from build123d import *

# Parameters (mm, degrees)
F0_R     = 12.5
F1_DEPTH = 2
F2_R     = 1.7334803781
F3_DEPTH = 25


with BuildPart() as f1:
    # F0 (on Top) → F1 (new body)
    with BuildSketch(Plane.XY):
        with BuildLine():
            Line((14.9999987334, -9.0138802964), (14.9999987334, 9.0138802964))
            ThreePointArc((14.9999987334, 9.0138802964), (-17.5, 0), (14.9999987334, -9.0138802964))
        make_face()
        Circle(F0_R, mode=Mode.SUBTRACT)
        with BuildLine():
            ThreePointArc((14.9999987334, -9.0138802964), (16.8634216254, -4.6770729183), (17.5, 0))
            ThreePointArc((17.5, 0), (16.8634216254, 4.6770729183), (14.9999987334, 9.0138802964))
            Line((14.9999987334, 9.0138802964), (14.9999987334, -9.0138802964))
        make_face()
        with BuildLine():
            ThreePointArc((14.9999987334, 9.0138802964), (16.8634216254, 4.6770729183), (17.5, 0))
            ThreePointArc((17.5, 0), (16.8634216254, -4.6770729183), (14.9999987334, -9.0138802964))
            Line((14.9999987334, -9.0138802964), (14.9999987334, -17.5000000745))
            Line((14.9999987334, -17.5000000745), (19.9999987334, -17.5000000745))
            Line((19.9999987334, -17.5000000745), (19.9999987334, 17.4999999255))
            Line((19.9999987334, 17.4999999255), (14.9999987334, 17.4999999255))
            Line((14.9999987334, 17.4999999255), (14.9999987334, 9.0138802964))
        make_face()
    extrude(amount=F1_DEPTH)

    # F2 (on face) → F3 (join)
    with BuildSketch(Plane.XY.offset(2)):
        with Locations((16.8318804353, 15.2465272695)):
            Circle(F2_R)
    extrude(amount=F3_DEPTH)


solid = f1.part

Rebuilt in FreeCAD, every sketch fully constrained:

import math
import FreeCAD as App
import Part
import Sketcher
from FreeCAD import Vector

doc = App.newDocument("Part")
body = doc.addObject("PartDesign::Body", "Body")

# Sketch on XY plane
sketch1 = doc.addObject("Sketcher::SketchObject", "Sketch")
body.addObject(sketch1)
sketch1.AttachmentSupport = (doc.XY_Plane, [""])
sketch1.MapMode = "FlatFace"
sketch1.addGeometry([
    Part.ArcOfCircle(Part.Circle(Vector(0, 0, 0), Vector(0, 0, 1), 18), math.radians(31), math.radians(329)),  # 0
    Part.LineSegment(Vector(15, -9, 0), Vector(15, -18, 0)),  # 1
    Part.LineSegment(Vector(15, -18, 0), Vector(20, -18, 0)),  # 2
    Part.LineSegment(Vector(20, -18, 0), Vector(20, 17, 0)),  # 3
    Part.LineSegment(Vector(20, 17, 0), Vector(15, 17, 0)),  # 4
    Part.LineSegment(Vector(15, 17, 0), Vector(15, 9, 0)),  # 5
    Part.Circle(Vector(0, 0, 0), Vector(0, 0, 1), 12),  # 6
], False)
sketch1.addConstraint([
    Sketcher.Constraint("Coincident", 0, 2, 1, 1),
    Sketcher.Constraint("Coincident", 1, 2, 2, 1),
    Sketcher.Constraint("Coincident", 2, 2, 3, 1),
    Sketcher.Constraint("Coincident", 3, 2, 4, 1),
    Sketcher.Constraint("Coincident", 4, 2, 5, 1),
    Sketcher.Constraint("Coincident", 5, 2, 0, 1),
    Sketcher.Constraint("Vertical", 1),
    Sketcher.Constraint("Horizontal", 2),
    Sketcher.Constraint("Vertical", 3),
    Sketcher.Constraint("Horizontal", 4),
    Sketcher.Constraint("Vertical", 5),
    Sketcher.Constraint("Coincident", 0, 3, -1, 1),
    Sketcher.Constraint("Coincident", 6, 3, -1, 1),
    Sketcher.Constraint("Symmetric", 1, 2, 4, 2, -1),
    Sketcher.Constraint("Diameter", 6, 25.0),
    Sketcher.Constraint("Radius", 0, 17.5),
    Sketcher.Constraint("DistanceX", 2, 1, 2, 2, 5.0),
    Sketcher.Constraint("DistanceY", 3, 1, 3, 2, 35.0),
    Sketcher.Constraint("DistanceX", -1, 1, 0, 2, 14.999999),
])
pad1 = doc.addObject("PartDesign::Pad", "Pad")
body.addObject(pad1)
pad1.Profile = sketch1
pad1.Length = 2

# Sketch on XY plane
sketch2 = doc.addObject("Sketcher::SketchObject", "Sketch001")
body.addObject(sketch2)
sketch2.AttachmentSupport = (doc.XY_Plane, [""])
sketch2.MapMode = "FlatFace"
sketch2.AttachmentOffset = App.Placement(Vector(0, 0, 2), App.Rotation())
sketch2.addGeometry(Part.Circle(Vector(16.8, 15.2, 0), Vector(0, 0, 1), 1.7), False)
sketch2.addConstraint([
    Sketcher.Constraint("Diameter", 0, 3.466961),
    Sketcher.Constraint("DistanceX", -1, 1, 0, 3, 16.83188),
    Sketcher.Constraint("DistanceY", -1, 1, 0, 3, 15.246527),
])
pad2 = doc.addObject("PartDesign::Pad", "Pad001")
body.addObject(pad2)
pad2.Profile = sketch2
pad2.Length = 25

doc.recompute()
